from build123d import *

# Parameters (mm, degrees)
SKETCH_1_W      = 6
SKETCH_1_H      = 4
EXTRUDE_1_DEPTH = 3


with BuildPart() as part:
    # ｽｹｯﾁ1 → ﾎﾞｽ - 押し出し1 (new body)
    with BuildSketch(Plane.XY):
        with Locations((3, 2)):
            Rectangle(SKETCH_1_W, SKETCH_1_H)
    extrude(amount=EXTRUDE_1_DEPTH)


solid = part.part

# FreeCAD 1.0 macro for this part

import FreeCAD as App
import Part
import Sketcher
Q = App.Units.Quantity

doc = App.newDocument("Part")
params = doc.addObject("Spreadsheet::Sheet", "Params")
for row, (alias, value) in enumerate([
    ("sketch1_width", "6 mm"),
    ("sketch1_height", "4 mm"),
    ("pad1_length", "3 mm"),
], start=1):
    params.set(f"A{row}", alias)
    params.set(f"B{row}", "=" + value)
    params.setAlias(f"B{row}", alias)

body = doc.addObject("PartDesign::Body", "Body")

# Sketch on XY plane
sketch1 = body.newObject("Sketcher::SketchObject", "Sketch")
sketch1.AttachmentSupport = (doc.getObject("XY_Plane"), [""])
sketch1.MapMode = "FlatFace"
sketch1.addGeometry([
    Part.LineSegment(App.Vector(0, 4, 0), App.Vector(0, 0, 0)),
    Part.LineSegment(App.Vector(0, 0, 0), App.Vector(6, 0, 0)),
    Part.LineSegment(App.Vector(6, 0, 0), App.Vector(6, 4, 0)),
    Part.LineSegment(App.Vector(6, 4, 0), App.Vector(0, 4, 0)),
], False)
sketch1.addConstraint([
    Sketcher.Constraint("Coincident", 0, 2, 1, 1),
    Sketcher.Constraint("Coincident", 1, 2, 2, 1),
    Sketcher.Constraint("Coincident", 2, 2, 3, 1),
    Sketcher.Constraint("Coincident", 3, 2, 0, 1),
    Sketcher.Constraint("Vertical", 0),
    Sketcher.Constraint("Horizontal", 1),
    Sketcher.Constraint("Vertical", 2),
    Sketcher.Constraint("Horizontal", 3),
    Sketcher.Constraint("Coincident", 0, 2, -1, 1),
    Sketcher.Constraint("DistanceX", 1, 1, 1, 2, Q("6 mm")),
    Sketcher.Constraint("DistanceY", 0, 2, 0, 1, Q("4 mm")),
])
sketch1.setExpression("Constraints[9]", "Params.sketch1_width")
sketch1.setExpression("Constraints[10]", "Params.sketch1_height")
pad1 = body.newObject("PartDesign::Pad", "Pad")
pad1.Profile = sketch1
pad1.setExpression("Length", "Params.pad1_length")

doc.recompute()
